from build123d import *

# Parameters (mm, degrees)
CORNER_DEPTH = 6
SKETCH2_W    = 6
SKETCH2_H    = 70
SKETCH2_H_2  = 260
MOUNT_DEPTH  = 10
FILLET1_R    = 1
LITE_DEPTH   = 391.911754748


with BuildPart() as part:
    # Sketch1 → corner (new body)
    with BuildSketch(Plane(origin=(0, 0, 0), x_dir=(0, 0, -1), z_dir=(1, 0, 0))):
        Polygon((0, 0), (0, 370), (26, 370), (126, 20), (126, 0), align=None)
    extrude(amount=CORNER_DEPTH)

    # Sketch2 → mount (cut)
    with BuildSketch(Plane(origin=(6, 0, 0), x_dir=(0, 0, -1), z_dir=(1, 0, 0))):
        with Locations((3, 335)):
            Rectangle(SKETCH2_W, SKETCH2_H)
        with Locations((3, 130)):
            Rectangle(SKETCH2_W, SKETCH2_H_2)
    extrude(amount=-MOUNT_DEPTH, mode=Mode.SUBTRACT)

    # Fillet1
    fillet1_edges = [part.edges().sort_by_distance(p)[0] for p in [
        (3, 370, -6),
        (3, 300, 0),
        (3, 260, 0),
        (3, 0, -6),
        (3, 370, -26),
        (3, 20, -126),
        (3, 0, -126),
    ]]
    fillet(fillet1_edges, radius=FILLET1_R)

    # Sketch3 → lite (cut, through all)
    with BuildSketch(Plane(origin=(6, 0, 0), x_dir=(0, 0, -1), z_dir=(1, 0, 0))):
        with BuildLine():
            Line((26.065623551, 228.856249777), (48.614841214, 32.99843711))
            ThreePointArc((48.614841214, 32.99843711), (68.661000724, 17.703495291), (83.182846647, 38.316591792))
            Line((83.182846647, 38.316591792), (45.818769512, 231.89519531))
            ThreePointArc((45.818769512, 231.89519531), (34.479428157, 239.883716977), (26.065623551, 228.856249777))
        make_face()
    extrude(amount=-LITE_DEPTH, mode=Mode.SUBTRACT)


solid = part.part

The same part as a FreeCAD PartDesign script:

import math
import FreeCAD as App
import Part
import Sketcher
from FreeCAD import Vector


def edges_at(feature, points):
    """Names of the edges that pass closest to the given points."""
    edges = feature.Shape.Edges
    near = lambda p: min(range(len(edges)), key=lambda i: edges[i].distToShape(Part.Vertex(*p))[0])
    return sorted({f"Edge{near(p) + 1}" for p in points})


def add_polygon(sketch, points):
    """Adds a closed chain of lines whose ends are joined by coincident constraints."""
    first, n = sketch.GeometryCount, len(points)
    for a, b in zip(points, points[1:] + points[:1]):
        sketch.addGeometry(Part.LineSegment(App.Vector(*a, 0), App.Vector(*b, 0)), False)
    for i in range(n):
        sketch.addConstraint(Sketcher.Constraint("Coincident", first + i, 2, first + (i + 1) % n, 1))

doc = App.newDocument("Part")
body = doc.addObject("PartDesign::Body", "Body")

sketch1 = body.newObject("Sketcher::SketchObject", "Sketch")
sketch1.AttachmentSupport = (doc.getObject("YZ_Plane"), [""])
sketch1.MapMode = "FlatFace"
add_polygon(sketch1, [(370, 0), (0, 0), (0, -126), (20, -126), (370, -26)])
sketch1.addConstraint([
    Sketcher.Constraint("Horizontal", 0),
    Sketcher.Constraint("Vertical", 1),
    Sketcher.Constraint("Horizontal", 2),
    Sketcher.Constraint("Vertical", 4),
    Sketcher.Constraint("Coincident", 0, 2, -1, 1),
    Sketcher.Constraint("DistanceX", 0, 2, 0, 1, 370.0),
    Sketcher.Constraint("DistanceX", 2, 1, 2, 2, 20.0),
    Sketcher.Constraint("DistanceY", 1, 2, 1, 1, 126.0),
    Sketcher.Constraint("DistanceY", 4, 1, 4, 2, 26.0),
])
pad1 = body.newObject("PartDesign::Pad", "Pad")
pad1.Profile = sketch1
pad1.Length = 6

sketch2 = body.newObject("Sketcher::SketchObject", "Sketch001")
sketch2.AttachmentSupport = (doc.getObject("YZ_Plane"), [""])
sketch2.MapMode = "FlatFace"
sketch2.AttachmentOffset = App.Placement(Vector(0, 0, 6), App.Rotation())
add_polygon(sketch2, [(370, 0), (300, 0), (300, -6), (370, -6)])
add_polygon(sketch2, [(260, 0), (0, 0), (0, -6), (260, -6)])
sketch2.addConstraint([
    Sketcher.Constraint("Horizontal", 0),
    Sketcher.Constraint("Vertical", 1),
    Sketcher.Constraint("Horizontal", 2),
    Sketcher.Constraint("Vertical", 3),
    Sketcher.Constraint("Horizontal", 4),
    Sketcher.Constraint("Vertical", 5),
    Sketcher.Constraint("Horizontal", 6),
    Sketcher.Constraint("Vertical", 7),
    Sketcher.Constraint("Coincident", 4, 2, -1, 1),
    Sketcher.Constraint("PointOnObject", 0, 2, -1),
    Sketcher.Constraint("Horizontal", 2, 2, 5, 2),
    Sketcher.Constraint("DistanceX", 0, 2, 0, 1, 70.0),
    Sketcher.Constraint("DistanceX", 4, 2, 4, 1, 260.0),
    Sketcher.Constraint("DistanceY", 1, 2, 1, 1, 6.0),
    Sketcher.Constraint("DistanceX", -1, 1, 0, 2, 300.0),
])
pocket1 = body.newObject("PartDesign::Pocket", "Pocket")
pocket1.Profile = sketch2
pocket1.Length = 10
doc.recompute()

fillet = body.newObject("PartDesign::Fillet", "Fillet")
fillet.Base = (pocket1, edges_at(pocket1, [
    (3, 370, -6),
    (3, 300, 0),
    (3, 260, 0),
    (3, 0, -6),
    (3, 370, -26),
    (3, 20, -126),
    (3, 0, -126),
]))
fillet.Radius = 1

sketch3 = body.newObject("Sketcher::SketchObject", "Sketch002")
sketch3.AttachmentSupport = (doc.getObject("YZ_Plane"), [""])
sketch3.MapMode = "FlatFace"
sketch3.AttachmentOffset = App.Placement(Vector(0, 0, 6), App.Rotation())
sketch3.addGeometry([
    Part.LineSegment(Vector(229, -26, 0), Vector(33, -49, 0)),
    Part.ArcOfCircle(Part.Circle(Vector(35, -66, 0), Vector(0, 0, 1), 18), math.radians(97), math.radians(281)),
    Part.LineSegment(Vector(38, -83, 0), Vector(232, -46, 0)),
    Part.ArcOfCircle(Part.Circle(Vector(230, -36, 0), Vector(0, 0, 1), 10), math.radians(-79), math.radians(97)),
], False)
sketch3.addConstraint([
    Sketcher.Constraint("Tangent", 0, 2, 1, 1),
    Sketcher.Constraint("Tangent", 1, 2, 2, 1),
    Sketcher.Constraint("Tangent", 2, 2, 3, 1),
    Sketcher.Constraint("Tangent", 3, 2, 0, 1),
    Sketcher.Constraint("Radius", 3, 10.0),
    Sketcher.Constraint("Radius", 1, 17.5),
    Sketcher.Constraint("DistanceX", -1, 1, 1, 3, 35.0),
    Sketcher.Constraint("DistanceY", 1, 3, -1, 1, 66.0),
    Sketcher.Constraint("DistanceX", -1, 1, 3, 3, 230.0),
    Sketcher.Constraint("DistanceY", 3, 3, -1, 1, 36.0),
])
pocket2 = body.newObject("PartDesign::Pocket", "Pocket001")
pocket2.Profile = sketch3
pocket2.Type = "ThroughAll"

doc.recompute()
